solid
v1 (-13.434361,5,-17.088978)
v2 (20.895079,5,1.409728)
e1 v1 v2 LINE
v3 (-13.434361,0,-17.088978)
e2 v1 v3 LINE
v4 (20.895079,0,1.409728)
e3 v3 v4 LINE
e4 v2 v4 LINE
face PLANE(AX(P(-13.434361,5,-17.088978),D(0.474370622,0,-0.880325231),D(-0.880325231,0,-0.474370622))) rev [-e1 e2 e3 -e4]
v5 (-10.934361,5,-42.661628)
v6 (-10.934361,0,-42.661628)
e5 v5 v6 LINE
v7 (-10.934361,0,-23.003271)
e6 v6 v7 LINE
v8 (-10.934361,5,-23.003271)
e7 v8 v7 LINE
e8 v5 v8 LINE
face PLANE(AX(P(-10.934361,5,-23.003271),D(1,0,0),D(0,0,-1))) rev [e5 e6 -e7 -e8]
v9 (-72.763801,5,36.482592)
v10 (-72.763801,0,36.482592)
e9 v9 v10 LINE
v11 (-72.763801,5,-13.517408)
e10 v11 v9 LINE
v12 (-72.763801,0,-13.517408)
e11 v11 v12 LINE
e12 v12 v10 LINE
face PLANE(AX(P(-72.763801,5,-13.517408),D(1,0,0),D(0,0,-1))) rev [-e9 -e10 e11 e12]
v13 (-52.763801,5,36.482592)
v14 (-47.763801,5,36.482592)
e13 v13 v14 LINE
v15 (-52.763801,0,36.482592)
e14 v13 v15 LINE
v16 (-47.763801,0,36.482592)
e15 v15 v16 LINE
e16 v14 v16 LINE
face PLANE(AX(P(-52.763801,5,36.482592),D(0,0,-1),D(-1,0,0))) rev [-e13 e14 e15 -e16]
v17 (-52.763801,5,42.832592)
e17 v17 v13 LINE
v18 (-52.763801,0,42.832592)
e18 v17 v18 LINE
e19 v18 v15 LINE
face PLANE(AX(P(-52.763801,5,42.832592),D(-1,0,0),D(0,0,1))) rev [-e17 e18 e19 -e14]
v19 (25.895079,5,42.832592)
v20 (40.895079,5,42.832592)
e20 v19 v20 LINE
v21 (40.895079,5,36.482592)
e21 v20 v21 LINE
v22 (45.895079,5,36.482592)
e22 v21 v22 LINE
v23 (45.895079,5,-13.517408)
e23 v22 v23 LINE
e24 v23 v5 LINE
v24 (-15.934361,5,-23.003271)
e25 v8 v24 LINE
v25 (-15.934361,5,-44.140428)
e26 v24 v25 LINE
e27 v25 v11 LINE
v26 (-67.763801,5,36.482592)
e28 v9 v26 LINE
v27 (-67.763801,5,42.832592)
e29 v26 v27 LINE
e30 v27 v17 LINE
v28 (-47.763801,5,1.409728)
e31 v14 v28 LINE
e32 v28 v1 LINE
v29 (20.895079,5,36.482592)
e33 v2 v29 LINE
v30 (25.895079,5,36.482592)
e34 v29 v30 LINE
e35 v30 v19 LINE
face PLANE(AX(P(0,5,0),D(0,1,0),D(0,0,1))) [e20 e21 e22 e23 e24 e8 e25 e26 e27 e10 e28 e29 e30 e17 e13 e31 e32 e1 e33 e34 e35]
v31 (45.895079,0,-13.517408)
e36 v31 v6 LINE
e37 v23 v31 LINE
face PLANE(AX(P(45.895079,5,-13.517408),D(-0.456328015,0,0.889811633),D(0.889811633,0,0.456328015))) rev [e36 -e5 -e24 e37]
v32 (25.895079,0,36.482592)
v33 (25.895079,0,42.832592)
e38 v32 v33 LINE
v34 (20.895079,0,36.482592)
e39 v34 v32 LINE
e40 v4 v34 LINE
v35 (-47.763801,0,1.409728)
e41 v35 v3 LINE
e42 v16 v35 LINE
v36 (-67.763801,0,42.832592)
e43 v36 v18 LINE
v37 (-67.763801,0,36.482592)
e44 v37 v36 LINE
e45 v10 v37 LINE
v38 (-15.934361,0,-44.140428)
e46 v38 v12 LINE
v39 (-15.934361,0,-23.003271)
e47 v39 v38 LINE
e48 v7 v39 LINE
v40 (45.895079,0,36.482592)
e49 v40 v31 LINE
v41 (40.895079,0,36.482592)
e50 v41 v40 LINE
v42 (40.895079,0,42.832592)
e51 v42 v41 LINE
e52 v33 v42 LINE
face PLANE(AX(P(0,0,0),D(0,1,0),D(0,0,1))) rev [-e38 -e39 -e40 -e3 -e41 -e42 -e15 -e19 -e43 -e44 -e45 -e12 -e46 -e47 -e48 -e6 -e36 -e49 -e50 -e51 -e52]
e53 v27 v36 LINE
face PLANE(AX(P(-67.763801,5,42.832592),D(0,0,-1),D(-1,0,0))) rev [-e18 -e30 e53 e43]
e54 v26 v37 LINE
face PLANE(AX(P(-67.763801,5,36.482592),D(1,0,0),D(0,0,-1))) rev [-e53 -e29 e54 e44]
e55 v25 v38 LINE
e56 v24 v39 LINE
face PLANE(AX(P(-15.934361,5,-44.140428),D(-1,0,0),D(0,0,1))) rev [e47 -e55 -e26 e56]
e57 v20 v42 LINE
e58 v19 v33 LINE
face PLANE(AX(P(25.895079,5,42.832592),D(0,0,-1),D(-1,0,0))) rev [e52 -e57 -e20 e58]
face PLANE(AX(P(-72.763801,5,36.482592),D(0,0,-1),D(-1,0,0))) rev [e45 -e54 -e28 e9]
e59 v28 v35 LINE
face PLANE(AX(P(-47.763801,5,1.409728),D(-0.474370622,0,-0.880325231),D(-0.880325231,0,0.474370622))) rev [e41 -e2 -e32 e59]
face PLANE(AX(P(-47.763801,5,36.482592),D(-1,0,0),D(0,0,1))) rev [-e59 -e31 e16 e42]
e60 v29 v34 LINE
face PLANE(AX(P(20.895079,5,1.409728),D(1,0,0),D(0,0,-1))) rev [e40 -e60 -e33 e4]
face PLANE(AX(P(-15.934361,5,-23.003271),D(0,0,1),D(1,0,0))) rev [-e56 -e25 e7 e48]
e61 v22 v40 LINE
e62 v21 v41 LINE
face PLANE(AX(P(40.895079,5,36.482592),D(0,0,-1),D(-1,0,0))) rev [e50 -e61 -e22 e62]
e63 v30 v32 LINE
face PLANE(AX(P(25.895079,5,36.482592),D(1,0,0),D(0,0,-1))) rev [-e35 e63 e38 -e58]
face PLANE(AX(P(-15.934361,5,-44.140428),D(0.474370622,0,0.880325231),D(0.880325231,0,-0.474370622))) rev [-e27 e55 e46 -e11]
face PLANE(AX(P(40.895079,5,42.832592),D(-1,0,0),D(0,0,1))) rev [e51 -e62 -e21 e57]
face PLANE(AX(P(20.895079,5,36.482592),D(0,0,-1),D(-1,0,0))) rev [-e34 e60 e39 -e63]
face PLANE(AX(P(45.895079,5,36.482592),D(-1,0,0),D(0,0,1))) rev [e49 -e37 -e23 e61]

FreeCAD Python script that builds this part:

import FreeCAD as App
import Part
import Sketcher

V = App.Vector

doc = App.newDocument("Part")
body = doc.addObject("PartDesign::Body", "Body")

# Sketch on XZ plane
sketch1 = body.newObject("Sketcher::SketchObject", "Sketch")
sketch1.AttachmentSupport = (doc.getObject("XZ_Plane"), [""])
sketch1.MapMode = "FlatFace"
sketch1.addGeometry(Part.LineSegment(V(-72.763801, 36.482592, 0), V(-67.763801, 36.482592, 0)), False)
sketch1.addGeometry(Part.LineSegment(V(-67.763801, 36.482592, 0), V(-67.763801, 42.832592, 0)), False)
sketch1.addGeometry(Part.LineSegment(V(-67.763801, 42.832592, 0), V(-52.763801, 42.832592, 0)), False)
sketch1.addGeometry(Part.LineSegment(V(-52.763801, 42.832592, 0), V(-52.763801, 36.482592, 0)), False)
sketch1.addGeometry(Part.LineSegment(V(-52.763801, 36.482592, 0), V(-47.763801, 36.482592, 0)), False)
sketch1.addGeometry(Part.LineSegment(V(-47.763801, 36.482592, 0), V(-47.763801, 1.409728, 0)), False)
sketch1.addGeometry(Part.LineSegment(V(-47.763801, 1.409728, 0), V(-13.434361, -17.088978, 0)), False)
sketch1.addGeometry(Part.LineSegment(V(-13.434361, -17.088978, 0), V(20.895079, 1.409728, 0)), False)
sketch1.addGeometry(Part.LineSegment(V(20.895079, 1.409728, 0), V(20.895079, 36.482592, 0)), False)
sketch1.addGeometry(Part.LineSegment(V(20.895079, 36.482592, 0), V(25.895079, 36.482592, 0)), False)
sketch1.addGeometry(Part.LineSegment(V(25.895079, 36.482592, 0), V(25.895079, 42.832592, 0)), False)
sketch1.addGeometry(Part.LineSegment(V(25.895079, 42.832592, 0), V(40.895079, 42.832592, 0)), False)
sketch1.addGeometry(Part.LineSegment(V(40.895079, 42.832592, 0), V(40.895079, 36.482592, 0)), False)
sketch1.addGeometry(Part.LineSegment(V(40.895079, 36.482592, 0), V(45.895079, 36.482592, 0)), False)
sketch1.addGeometry(Part.LineSegment(V(45.895079, 36.482592, 0), V(45.895079, -13.517408, 0)), False)
sketch1.addGeometry(Part.LineSegment(V(45.895079, -13.517408, 0), V(-10.934361, -42.661628, 0)), False)
sketch1.addGeometry(Part.LineSegment(V(-10.934361, -42.661628, 0), V(-10.934361, -23.003271, 0)), False)
sketch1.addGeometry(Part.LineSegment(V(-10.934361, -23.003271, 0), V(-15.934361, -23.003271, 0)), False)
sketch1.addGeometry(Part.LineSegment(V(-15.934361, -23.003271, 0), V(-15.934361, -44.140428, 0)), False)
sketch1.addGeometry(Part.LineSegment(V(-15.934361, -44.140428, 0), V(-72.763801, -13.517408, 0)), False)
sketch1.addGeometry(Part.LineSegment(V(-72.763801, -13.517408, 0), V(-72.763801, 36.482592, 0)), False)
sketch1.addConstraint(Sketcher.Constraint("Coincident", 0, 2, 1, 1))
sketch1.addConstraint(Sketcher.Constraint("Coincident", 1, 2, 2, 1))
sketch1.addConstraint(Sketcher.Constraint("Coincident", 2, 2, 3, 1))
sketch1.addConstraint(Sketcher.Constraint("Coincident", 3, 2, 4, 1))
sketch1.addConstraint(Sketcher.Constraint("Coincident", 4, 2, 5, 1))
sketch1.addConstraint(Sketcher.Constraint("Coincident", 5, 2, 6, 1))
sketch1.addConstraint(Sketcher.Constraint("Coincident", 6, 2, 7, 1))
sketch1.addConstraint(Sketcher.Constraint("Coincident", 7, 2, 8, 1))
sketch1.addConstraint(Sketcher.Constraint("Coincident", 8, 2, 9, 1))
sketch1.addConstraint(Sketcher.Constraint("Coincident", 9, 2, 10, 1))
sketch1.addConstraint(Sketcher.Constraint("Coincident", 10, 2, 11, 1))
sketch1.addConstraint(Sketcher.Constraint("Coincident", 11, 2, 12, 1))
sketch1.addConstraint(Sketcher.Constraint("Coincident", 12, 2, 13, 1))
sketch1.addConstraint(Sketcher.Constraint("Coincident", 13, 2, 14, 1))
sketch1.addConstraint(Sketcher.Constraint("Coincident", 14, 2, 15, 1))
sketch1.addConstraint(Sketcher.Constraint("Coincident", 15, 2, 16, 1))
sketch1.addConstraint(Sketcher.Constraint("Coincident", 16, 2, 17, 1))
sketch1.addConstraint(Sketcher.Constraint("Coincident", 17, 2, 18, 1))
sketch1.addConstraint(Sketcher.Constraint("Coincident", 18, 2, 19, 1))
sketch1.addConstraint(Sketcher.Constraint("Coincident", 19, 2, 20, 1))
sketch1.addConstraint(Sketcher.Constraint("Coincident", 20, 2, 0, 1))
sketch1.addConstraint(Sketcher.Constraint("Horizontal", 0))
sketch1.addConstraint(Sketcher.Constraint("Vertical", 1))
sketch1.addConstraint(Sketcher.Constraint("Horizontal", 2))
sketch1.addConstraint(Sketcher.Constraint("Vertical", 3))
sketch1.addConstraint(Sketcher.Constraint("Horizontal", 4))
sketch1.addConstraint(Sketcher.Constraint("Vertical", 5))
sketch1.addConstraint(Sketcher.Constraint("Vertical", 8))
sketch1.addConstraint(Sketcher.Constraint("Horizontal", 9))
sketch1.addConstraint(Sketcher.Constraint("Vertical", 10))
sketch1.addConstraint(Sketcher.Constraint("Horizontal", 11))
sketch1.addConstraint(Sketcher.Constraint("Vertical", 12))
sketch1.addConstraint(Sketcher.Constraint("Horizontal", 13))
sketch1.addConstraint(Sketcher.Constraint("Vertical", 14))
sketch1.addConstraint(Sketcher.Constraint("Vertical", 16))
sketch1.addConstraint(Sketcher.Constraint("Horizontal", 17))
sketch1.addConstraint(Sketcher.Constraint("Vertical", 18))
sketch1.addConstraint(Sketcher.Constraint("Vertical", 20))
sketch1.addConstraint(Sketcher.Constraint("Parallel", 6, 19))
sketch1.addConstraint(Sketcher.Constraint("Horizontal", 0, 2, 3, 2))
sketch1.addConstraint(Sketcher.Constraint("Horizontal", 5, 2, 7, 2))
sketch1.addConstraint(Sketcher.Constraint("Horizontal", 4, 2, 8, 2))
sketch1.addConstraint(Sketcher.Constraint("Horizontal", 2, 2, 10, 2))
sketch1.addConstraint(Sketcher.Constraint("Horizontal", 9, 2, 12, 2))
sketch1.addConstraint(Sketcher.Constraint("Horizontal", 14, 2, 19, 2))
sketch1.addConstraint(Sketcher.Constraint("Equal", 0, 4))
sketch1.addConstraint(Sketcher.Constraint("Equal", 4, 9))
sketch1.addConstraint(Sketcher.Constraint("Equal", 2, 11))
sketch1.addConstraint(Sketcher.Constraint("Equal", 9, 13))
sketch1.addConstraint(Sketcher.Constraint("Equal", 13, 17))
sketch1.addConstraint(Sketcher.Constraint("Equal", 6, 7))
sketch1.addConstraint(Sketcher.Constraint("DistanceX", 0, 1, 0, 2, 5.0))
sketch1.addConstraint(Sketcher.Constraint("DistanceX", 2, 1, 2, 2, 15.0))
sketch1.addConstraint(Sketcher.Constraint("DistanceY", 14, 2, 14, 1, 50.0))
sketch1.addConstraint(Sketcher.Constraint("DistanceY", 1, 1, 1, 2, 6.35))
sketch1.addConstraint(Sketcher.Constraint("DistanceX", 6, 2, 15, 2, 2.5))
sketch1.addConstraint(Sketcher.Constraint("DistanceY", 16, 2, 7, 2, 24.412999))
sketch1.addConstraint(Sketcher.Constraint("DistanceX", 0, 2, -1, 1, 67.763801))
sketch1.addConstraint(Sketcher.Constraint("DistanceY", 18, 2, 15, 2, 1.4788))
sketch1.addConstraint(Sketcher.Constraint("Distance", 15, 63.866821))
sketch1.addConstraint(Sketcher.Constraint("Distance", 19, 64.555051))
sketch1.addConstraint(Sketcher.Constraint("DistanceY", 5, 2, 5, 1, 35.072864))
sketch1.addConstraint(Sketcher.Constraint("DistanceY", -1, 1, 0, 2, 36.482592))
pad1 = body.newObject("PartDesign::Pad", "Pad")
pad1.Profile = sketch1
pad1.Length = 5
pad1.Reversed = True

doc.recompute()
